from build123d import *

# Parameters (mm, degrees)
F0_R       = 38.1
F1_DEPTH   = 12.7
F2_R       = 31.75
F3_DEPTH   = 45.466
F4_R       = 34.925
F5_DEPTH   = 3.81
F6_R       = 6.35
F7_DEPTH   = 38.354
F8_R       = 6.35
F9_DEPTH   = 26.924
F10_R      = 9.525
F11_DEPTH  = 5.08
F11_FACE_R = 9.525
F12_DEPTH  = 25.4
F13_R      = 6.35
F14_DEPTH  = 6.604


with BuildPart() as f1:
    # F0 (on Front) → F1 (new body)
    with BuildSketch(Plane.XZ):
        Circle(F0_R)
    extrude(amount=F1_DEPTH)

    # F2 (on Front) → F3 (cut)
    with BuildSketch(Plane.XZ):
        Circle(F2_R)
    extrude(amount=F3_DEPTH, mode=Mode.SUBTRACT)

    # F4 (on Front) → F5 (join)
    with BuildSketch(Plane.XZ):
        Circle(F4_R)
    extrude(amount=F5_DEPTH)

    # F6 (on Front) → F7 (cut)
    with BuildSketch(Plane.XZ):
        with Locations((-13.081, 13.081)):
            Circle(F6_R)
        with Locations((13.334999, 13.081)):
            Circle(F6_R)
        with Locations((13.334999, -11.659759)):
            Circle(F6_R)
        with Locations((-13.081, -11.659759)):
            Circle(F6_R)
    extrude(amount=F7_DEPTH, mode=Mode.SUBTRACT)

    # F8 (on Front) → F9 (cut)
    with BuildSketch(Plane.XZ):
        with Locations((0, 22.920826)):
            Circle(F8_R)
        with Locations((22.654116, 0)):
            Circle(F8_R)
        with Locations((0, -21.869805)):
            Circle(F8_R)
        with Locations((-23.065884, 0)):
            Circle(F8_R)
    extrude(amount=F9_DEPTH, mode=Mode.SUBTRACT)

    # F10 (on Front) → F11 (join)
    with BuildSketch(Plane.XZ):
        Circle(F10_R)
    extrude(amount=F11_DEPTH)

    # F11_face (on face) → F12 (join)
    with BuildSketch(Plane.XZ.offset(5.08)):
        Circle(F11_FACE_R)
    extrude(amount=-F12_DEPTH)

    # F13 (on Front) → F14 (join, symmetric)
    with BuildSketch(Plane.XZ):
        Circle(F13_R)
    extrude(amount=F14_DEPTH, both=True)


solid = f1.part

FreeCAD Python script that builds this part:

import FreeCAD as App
import Part
import Sketcher
Q = App.Units.Quantity

doc = App.newDocument("Part")
body = doc.addObject("PartDesign::Body", "Body")

# Sketch on XZ plane
sketch1 = body.newObject("Sketcher::SketchObject", "Sketch")
sketch1.AttachmentSupport = (doc.getObject("XZ_Plane"), [""])
sketch1.MapMode = "FlatFace"
sketch1.addGeometry(Part.Circle(App.Vector(0, 0, 0), App.Vector(0, 0, 1), 38), False)
sketch1.addConstraint(Sketcher.Constraint("Coincident", 0, 3, -1, 1))
sketch1.addConstraint(Sketcher.Constraint("Diameter", 0, Q("3 in")))
pad1 = body.newObject("PartDesign::Pad", "Pad")
pad1.Profile = sketch1
pad1.Length = Q("0.5 in")

# Sketch on XZ plane
sketch2 = body.newObject("Sketcher::SketchObject", "Sketch001")
sketch2.AttachmentSupport = (doc.getObject("XZ_Plane"), [""])
sketch2.MapMode = "FlatFace"
sketch2.addGeometry(Part.Circle(App.Vector(0, 0, 0), App.Vector(0, 0, 1), 32), False)
sketch2.addConstraint(Sketcher.Constraint("Coincident", 0, 3, -1, 1))
sketch2.addConstraint(Sketcher.Constraint("Diameter", 0, Q("2.5 in")))
pocket1 = body.newObject("PartDesign::Pocket", "Pocket")
pocket1.Profile = sketch2
pocket1.Length = Q("1.79 in")
pocket1.Reversed = True

# Sketch on XZ plane
sketch3 = body.newObject("Sketcher::SketchObject", "Sketch002")
sketch3.AttachmentSupport = (doc.getObject("XZ_Plane"), [""])
sketch3.MapMode = "FlatFace"
sketch3.addGeometry(Part.Circle(App.Vector(0, 0, 0), App.Vector(0, 0, 1), 35), False)
sketch3.addConstraint(Sketcher.Constraint("Coincident", 0, 3, -1, 1))
sketch3.addConstraint(Sketcher.Constraint("Diameter", 0, Q("2.75 in")))
pad2 = body.newObject("PartDesign::Pad", "Pad001")
pad2.Profile = sketch3
pad2.Length = Q("0.15 in")

# Sketch on XZ plane
sketch4 = body.newObject("Sketcher::SketchObject", "Sketch003")
sketch4.AttachmentSupport = (doc.getObject("XZ_Plane"), [""])
sketch4.MapMode = "FlatFace"
sketch4.addGeometry(Part.Circle(App.Vector(-13, 13, 0), App.Vector(0, 0, 1), 6), False)
sketch4.addGeometry(Part.Circle(App.Vector(13, 13, 0), App.Vector(0, 0, 1), 6), False)
sketch4.addGeometry(Part.Circle(App.Vector(13, -12, 0), App.Vector(0, 0, 1), 6), False)
sketch4.addGeometry(Part.Circle(App.Vector(-13, -12, 0), App.Vector(0, 0, 1), 6), False)
sketch4.addConstraint(Sketcher.Constraint("Equal", 0, 1))
sketch4.addConstraint(Sketcher.Constraint("Equal", 1, 2))
sketch4.addConstraint(Sketcher.Constraint("Equal", 2, 3))
sketch4.addConstraint(Sketcher.Constraint("Horizontal", 0, 3, 1, 3))
sketch4.addConstraint(Sketcher.Constraint("Horizontal", 2, 3, 3, 3))
sketch4.addConstraint(Sketcher.Constraint("Vertical", 1, 3, 2, 3))
sketch4.addConstraint(Sketcher.Constraint("Vertical", 0, 3, 3, 3))
sketch4.addConstraint(Sketcher.Constraint("Diameter", 0, Q("0.5 in")))
sketch4.addConstraint(Sketcher.Constraint("DistanceX", 0, 3, 1, 3, Q("1.04 in")))
sketch4.addConstraint(Sketcher.Constraint("DistanceX", 0, 3, -1, 1, Q("0.515 in")))
sketch4.addConstraint(Sketcher.Constraint("DistanceY", -1, 1, 0, 3, Q("0.515 in")))
sketch4.addConstraint(Sketcher.Constraint("DistanceY", 2, 3, -1, 1, 11.659759))
pocket2 = body.newObject("PartDesign::Pocket", "Pocket001")
pocket2.Profile = sketch4
pocket2.Length = Q("1.51 in")
pocket2.Reversed = True

# Sketch on XZ plane
sketch5 = body.newObject("Sketcher::SketchObject", "Sketch004")
sketch5.AttachmentSupport = (doc.getObject("XZ_Plane"), [""])
sketch5.MapMode = "FlatFace"
sketch5.addGeometry(Part.Circle(App.Vector(0, 23, 0), App.Vector(0, 0, 1), 6), False)
sketch5.addGeometry(Part.Circle(App.Vector(23, 0, 0), App.Vector(0, 0, 1), 6), False)
sketch5.addGeometry(Part.Circle(App.Vector(0, -22, 0), App.Vector(0, 0, 1), 6), False)
sketch5.addGeometry(Part.Circle(App.Vector(-23, 0, 0), App.Vector(0, 0, 1), 6), False)
sketch5.addConstraint(Sketcher.Constraint("Equal", 0, 1))
sketch5.addConstraint(Sketcher.Constraint("Equal", 1, 2))
sketch5.addConstraint(Sketcher.Constraint("Equal", 2, 3))
sketch5.addConstraint(Sketcher.Constraint("PointOnObject", 0, 3, -2))
sketch5.addConstraint(Sketcher.Constraint("PointOnObject", 1, 3, -1))
sketch5.addConstraint(Sketcher.Constraint("PointOnObject", 2, 3, -2))
sketch5.addConstraint(Sketcher.Constraint("PointOnObject", 3, 3, -1))
sketch5.addConstraint(Sketcher.Constraint("Diameter", 0, Q("0.5 in")))
sketch5.addConstraint(Sketcher.Constraint("DistanceX", 3, 3, 1, 3, Q("1.8 in")))
sketch5.addConstraint(Sketcher.Constraint("DistanceY", 2, 3, 0, 3, 44.790631))
sketch5.addConstraint(Sketcher.Constraint("DistanceY", -1, 1, 0, 3, 22.920826))
sketch5.addConstraint(Sketcher.Constraint("DistanceX", -1, 1, 1, 3, 22.654116))
pocket3 = body.newObject("PartDesign::Pocket", "Pocket002")
pocket3.Profile = sketch5
pocket3.Length = Q("1.06 in")
pocket3.Reversed = True

# Sketch on XZ plane
sketch6 = body.newObject("Sketcher::SketchObject", "Sketch005")
sketch6.AttachmentSupport = (doc.getObject("XZ_Plane"), [""])
sketch6.MapMode = "FlatFace"
sketch6.addGeometry(Part.Circle(App.Vector(0, 0, 0), App.Vector(0, 0, 1), 10), False)
sketch6.addConstraint(Sketcher.Constraint("Coincident", 0, 3, -1, 1))
sketch6.addConstraint(Sketcher.Constraint("Diameter", 0, Q("0.75 in")))
pad3 = body.newObject("PartDesign::Pad", "Pad002")
pad3.Profile = sketch6
pad3.Length = Q("0.2 in")

# Sketch on XZ plane
sketch7 = body.newObject("Sketcher::SketchObject", "Sketch006")
sketch7.AttachmentSupport = (doc.getObject("XZ_Plane"), [""])
sketch7.MapMode = "FlatFace"
sketch7.AttachmentOffset = App.Placement(App.Vector(0, 0, 0.2 * 25.4), App.Rotation())
sketch7.addGeometry(Part.Circle(App.Vector(0, 0, 0), App.Vector(0, 0, 1), 10), False)
sketch7.addConstraint(Sketcher.Constraint("Coincident", 0, 3, -1, 1))
sketch7.addConstraint(Sketcher.Constraint("Diameter", 0, Q("0.75 in")))
pad4 = body.newObject("PartDesign::Pad", "Pad003")
pad4.Profile = sketch7
pad4.Length = Q("1 in")
pad4.Reversed = True

# Sketch on XZ plane
sketch8 = body.newObject("Sketcher::SketchObject", "Sketch007")
sketch8.AttachmentSupport = (doc.getObject("XZ_Plane"), [""])
sketch8.MapMode = "FlatFace"
sketch8.addGeometry(Part.Circle(App.Vector(0, 0, 0), App.Vector(0, 0, 1), 6), False)
sketch8.addConstraint(Sketcher.Constraint("Coincident", 0, 3, -1, 1))
sketch8.addConstraint(Sketcher.Constraint("Diameter", 0, Q("0.5 in")))
pad5 = body.newObject("PartDesign::Pad", "Pad004")
pad5.Profile = sketch8
pad5.Length = Q("0.52 in")
pad5.Midplane = True

doc.recompute()
